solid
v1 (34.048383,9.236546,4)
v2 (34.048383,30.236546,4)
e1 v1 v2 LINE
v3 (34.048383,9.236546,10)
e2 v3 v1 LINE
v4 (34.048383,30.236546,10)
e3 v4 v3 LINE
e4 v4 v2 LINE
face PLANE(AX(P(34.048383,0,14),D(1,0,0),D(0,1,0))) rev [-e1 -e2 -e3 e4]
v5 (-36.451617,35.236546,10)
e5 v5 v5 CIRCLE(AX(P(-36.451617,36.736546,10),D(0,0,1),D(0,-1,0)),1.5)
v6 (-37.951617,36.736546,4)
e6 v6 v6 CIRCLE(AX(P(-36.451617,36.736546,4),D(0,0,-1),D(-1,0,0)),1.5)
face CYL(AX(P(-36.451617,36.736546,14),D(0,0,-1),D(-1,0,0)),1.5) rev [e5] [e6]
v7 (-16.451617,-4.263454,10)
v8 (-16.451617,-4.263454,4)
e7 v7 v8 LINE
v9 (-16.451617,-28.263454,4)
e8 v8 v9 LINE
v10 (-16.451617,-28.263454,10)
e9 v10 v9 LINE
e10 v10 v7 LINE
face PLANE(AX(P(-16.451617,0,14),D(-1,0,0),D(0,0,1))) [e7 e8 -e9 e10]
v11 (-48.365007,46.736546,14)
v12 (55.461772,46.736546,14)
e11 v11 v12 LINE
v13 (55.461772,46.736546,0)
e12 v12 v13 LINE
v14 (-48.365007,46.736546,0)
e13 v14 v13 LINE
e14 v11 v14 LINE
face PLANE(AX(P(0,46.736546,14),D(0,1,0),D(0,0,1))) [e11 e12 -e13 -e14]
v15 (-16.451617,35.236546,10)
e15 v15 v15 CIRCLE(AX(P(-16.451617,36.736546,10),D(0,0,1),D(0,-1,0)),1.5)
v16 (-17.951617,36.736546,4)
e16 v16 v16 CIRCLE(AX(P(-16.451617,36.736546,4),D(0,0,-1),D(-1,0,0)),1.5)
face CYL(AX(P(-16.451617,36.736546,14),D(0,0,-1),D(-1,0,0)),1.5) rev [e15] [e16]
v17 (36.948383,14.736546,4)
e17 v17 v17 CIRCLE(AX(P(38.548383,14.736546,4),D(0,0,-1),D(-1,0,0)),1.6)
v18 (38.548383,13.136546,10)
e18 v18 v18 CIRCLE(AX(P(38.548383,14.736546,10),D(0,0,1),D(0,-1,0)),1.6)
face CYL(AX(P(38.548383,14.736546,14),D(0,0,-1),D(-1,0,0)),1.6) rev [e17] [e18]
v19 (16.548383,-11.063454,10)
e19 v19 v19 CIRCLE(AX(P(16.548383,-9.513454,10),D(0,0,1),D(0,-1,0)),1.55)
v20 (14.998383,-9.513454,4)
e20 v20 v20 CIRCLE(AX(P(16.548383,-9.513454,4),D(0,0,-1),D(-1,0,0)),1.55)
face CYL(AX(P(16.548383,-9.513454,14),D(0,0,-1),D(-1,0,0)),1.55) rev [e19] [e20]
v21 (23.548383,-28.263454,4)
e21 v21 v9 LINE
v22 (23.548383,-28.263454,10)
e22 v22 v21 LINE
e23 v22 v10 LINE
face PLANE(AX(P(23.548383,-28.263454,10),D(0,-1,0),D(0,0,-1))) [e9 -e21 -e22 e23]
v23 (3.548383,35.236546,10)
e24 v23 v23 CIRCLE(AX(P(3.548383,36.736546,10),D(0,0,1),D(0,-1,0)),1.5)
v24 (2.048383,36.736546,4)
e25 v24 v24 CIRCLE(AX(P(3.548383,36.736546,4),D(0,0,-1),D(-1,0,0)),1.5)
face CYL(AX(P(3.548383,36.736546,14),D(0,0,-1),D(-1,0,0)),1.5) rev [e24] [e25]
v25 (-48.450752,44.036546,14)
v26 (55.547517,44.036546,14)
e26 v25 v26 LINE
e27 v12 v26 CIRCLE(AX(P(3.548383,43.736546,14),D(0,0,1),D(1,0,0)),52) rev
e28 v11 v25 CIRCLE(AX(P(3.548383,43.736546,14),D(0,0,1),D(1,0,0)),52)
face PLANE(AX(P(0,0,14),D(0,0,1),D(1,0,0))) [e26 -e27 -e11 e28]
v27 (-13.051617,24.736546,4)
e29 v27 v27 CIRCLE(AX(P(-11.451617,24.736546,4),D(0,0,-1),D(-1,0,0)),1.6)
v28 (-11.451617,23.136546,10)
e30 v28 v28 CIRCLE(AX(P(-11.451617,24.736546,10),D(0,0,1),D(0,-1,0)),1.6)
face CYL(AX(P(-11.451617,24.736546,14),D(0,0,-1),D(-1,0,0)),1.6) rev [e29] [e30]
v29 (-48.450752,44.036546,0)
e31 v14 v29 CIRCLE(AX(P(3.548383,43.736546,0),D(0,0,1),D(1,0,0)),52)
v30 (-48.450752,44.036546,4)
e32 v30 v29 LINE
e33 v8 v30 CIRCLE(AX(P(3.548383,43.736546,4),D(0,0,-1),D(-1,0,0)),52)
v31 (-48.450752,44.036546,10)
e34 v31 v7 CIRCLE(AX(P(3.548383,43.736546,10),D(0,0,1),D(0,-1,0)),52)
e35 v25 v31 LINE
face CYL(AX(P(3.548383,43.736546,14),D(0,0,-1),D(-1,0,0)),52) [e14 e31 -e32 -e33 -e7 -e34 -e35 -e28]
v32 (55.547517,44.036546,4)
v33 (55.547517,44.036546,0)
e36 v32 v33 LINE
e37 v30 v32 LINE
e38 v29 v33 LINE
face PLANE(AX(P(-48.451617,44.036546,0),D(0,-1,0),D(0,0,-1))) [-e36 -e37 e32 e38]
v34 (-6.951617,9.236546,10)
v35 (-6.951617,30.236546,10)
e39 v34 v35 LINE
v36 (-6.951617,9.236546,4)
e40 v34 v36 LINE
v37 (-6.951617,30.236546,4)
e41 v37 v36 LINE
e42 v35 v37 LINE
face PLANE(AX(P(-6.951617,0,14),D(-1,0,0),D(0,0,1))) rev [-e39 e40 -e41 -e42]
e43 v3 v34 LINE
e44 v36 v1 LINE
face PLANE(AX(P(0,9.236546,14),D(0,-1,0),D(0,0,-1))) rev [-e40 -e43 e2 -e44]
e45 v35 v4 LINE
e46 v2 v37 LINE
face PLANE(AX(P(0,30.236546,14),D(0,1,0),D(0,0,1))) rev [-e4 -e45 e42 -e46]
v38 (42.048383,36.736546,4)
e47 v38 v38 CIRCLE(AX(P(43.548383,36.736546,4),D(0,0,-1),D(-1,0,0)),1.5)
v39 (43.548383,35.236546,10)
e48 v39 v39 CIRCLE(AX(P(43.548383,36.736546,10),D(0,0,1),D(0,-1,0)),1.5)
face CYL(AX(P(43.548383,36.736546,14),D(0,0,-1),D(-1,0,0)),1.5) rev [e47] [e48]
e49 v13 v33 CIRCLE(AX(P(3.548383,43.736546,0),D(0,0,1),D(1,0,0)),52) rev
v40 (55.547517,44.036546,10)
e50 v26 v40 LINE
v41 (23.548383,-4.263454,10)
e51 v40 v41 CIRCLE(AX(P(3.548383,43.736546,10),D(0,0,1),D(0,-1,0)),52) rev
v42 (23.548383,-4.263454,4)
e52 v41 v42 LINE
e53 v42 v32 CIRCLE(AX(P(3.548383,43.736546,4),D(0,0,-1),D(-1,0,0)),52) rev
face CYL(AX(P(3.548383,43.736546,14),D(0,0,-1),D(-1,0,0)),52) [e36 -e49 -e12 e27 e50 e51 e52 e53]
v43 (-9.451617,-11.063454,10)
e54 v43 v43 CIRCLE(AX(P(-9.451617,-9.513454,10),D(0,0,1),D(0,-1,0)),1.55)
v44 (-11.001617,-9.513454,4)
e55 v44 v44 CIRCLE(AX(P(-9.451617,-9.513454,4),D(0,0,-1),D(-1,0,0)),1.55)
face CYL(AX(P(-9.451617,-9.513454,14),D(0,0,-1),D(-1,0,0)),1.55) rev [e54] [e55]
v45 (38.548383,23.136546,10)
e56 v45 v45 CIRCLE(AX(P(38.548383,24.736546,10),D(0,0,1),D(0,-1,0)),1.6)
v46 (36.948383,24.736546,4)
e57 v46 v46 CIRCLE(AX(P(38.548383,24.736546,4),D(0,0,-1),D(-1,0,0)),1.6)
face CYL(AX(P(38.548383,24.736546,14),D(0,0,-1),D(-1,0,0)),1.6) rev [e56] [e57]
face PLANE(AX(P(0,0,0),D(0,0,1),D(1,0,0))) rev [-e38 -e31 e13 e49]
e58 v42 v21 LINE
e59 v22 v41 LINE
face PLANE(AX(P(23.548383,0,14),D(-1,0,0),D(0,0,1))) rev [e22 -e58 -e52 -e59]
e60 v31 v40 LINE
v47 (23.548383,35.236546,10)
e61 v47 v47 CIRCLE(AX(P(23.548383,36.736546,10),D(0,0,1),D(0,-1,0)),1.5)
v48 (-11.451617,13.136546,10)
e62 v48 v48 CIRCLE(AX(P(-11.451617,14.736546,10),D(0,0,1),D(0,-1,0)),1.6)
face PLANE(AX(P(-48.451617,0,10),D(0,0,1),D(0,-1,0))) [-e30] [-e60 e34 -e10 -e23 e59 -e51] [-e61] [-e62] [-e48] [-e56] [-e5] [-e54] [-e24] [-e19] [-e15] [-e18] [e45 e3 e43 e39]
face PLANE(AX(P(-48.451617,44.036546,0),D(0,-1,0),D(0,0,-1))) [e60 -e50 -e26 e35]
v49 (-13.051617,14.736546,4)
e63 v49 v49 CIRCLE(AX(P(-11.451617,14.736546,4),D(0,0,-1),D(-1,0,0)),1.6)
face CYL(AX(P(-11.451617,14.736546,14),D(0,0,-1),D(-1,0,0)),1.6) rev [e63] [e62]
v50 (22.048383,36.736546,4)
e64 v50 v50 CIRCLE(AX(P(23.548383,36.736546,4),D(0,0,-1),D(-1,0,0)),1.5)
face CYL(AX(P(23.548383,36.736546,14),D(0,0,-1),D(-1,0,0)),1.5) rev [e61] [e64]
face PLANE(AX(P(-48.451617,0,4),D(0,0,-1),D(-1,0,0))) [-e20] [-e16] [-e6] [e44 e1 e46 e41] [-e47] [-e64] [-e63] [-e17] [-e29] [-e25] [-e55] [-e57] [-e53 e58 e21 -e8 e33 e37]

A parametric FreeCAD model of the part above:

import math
import FreeCAD as App
import Part
import Sketcher

V = App.Vector
Q = App.Units.Quantity

doc = App.newDocument("Part")
body = doc.addObject("PartDesign::Body", "Body")

sketch1 = body.newObject("Sketcher::SketchObject", "Sketch")
sketch1.AttachmentSupport = (doc.getObject("XY_Plane"), [""])
sketch1.MapMode = "FlatFace"
sketch1.addGeometry(Part.LineSegment(V(55.461772, 46.736546, 0), V(-48.365007, 46.736546, 0)), False)
sketch1.addGeometry(Part.ArcOfCircle(Part.Circle(V(3.548386, 43.736546, 0), V(0, 0, 1), 52.000003), math.radians(176.692638), math.radians(178.632926)), False)
sketch1.addGeometry(Part.ArcOfCircle(Part.Circle(V(3.548382, 43.736546, 0), V(0, 0, 1), 52), math.radians(178.632926), math.radians(180)), False)
sketch1.addGeometry(Part.ArcOfCircle(Part.Circle(V(3.548383, 43.736546, 0), V(0, 0, 1), 52), math.radians(180), math.radians(247.380135)), False)
sketch1.addGeometry(Part.LineSegment(V(-16.451617, -4.263454, 0), V(-16.451617, -24.263454, 0)), False)
sketch1.addGeometry(Part.LineSegment(V(-16.451617, -24.263454, 0), V(23.548383, -24.263454, 0)), False)
sketch1.addGeometry(Part.LineSegment(V(23.548383, -24.263454, 0), V(23.548383, -4.263454, 0)), False)
sketch1.addGeometry(Part.ArcOfCircle(Part.Circle(V(3.548383, 43.736546, 0), V(0, 0, 1), 52), math.radians(-67.380135), math.radians(0)), False)
sketch1.addGeometry(Part.ArcOfCircle(Part.Circle(V(3.548382, 43.736546, 0), V(0, 0, 1), 52), math.radians(0), math.radians(3.307362)), False)
sketch1.addGeometry(Part.Circle(V(-11.451617, 14.736546, 0), V(0, 0, 1), 1.6), False)
sketch1.addGeometry(Part.Circle(V(38.548383, 14.736546, 0), V(0, 0, 1), 1.6), False)
sketch1.addGeometry(Part.LineSegment(V(34.048383, 9.236546, 0), V(-6.951617, 9.236546, 0)), False)
sketch1.addGeometry(Part.LineSegment(V(-6.951617, 9.236546, 0), V(-6.951617, 30.236546, 0)), False)
sketch1.addGeometry(Part.LineSegment(V(-6.951617, 30.236546, 0), V(34.048383, 30.236546, 0)), False)
sketch1.addGeometry(Part.LineSegment(V(34.048383, 30.236546, 0), V(34.048383, 9.236546, 0)), False)
sketch1.addGeometry(Part.Circle(V(-11.451617, 24.736546, 0), V(0, 0, 1), 1.6), False)
sketch1.addGeometry(Part.Circle(V(-36.451617, 36.736546, 0), V(0, 0, 1), 1.5), False)
sketch1.addGeometry(Part.Circle(V(-16.451617, 36.736546, 0), V(0, 0, 1), 1.5), False)
sketch1.addGeometry(Part.Circle(V(38.548383, 24.736546, 0), V(0, 0, 1), 1.6), False)
sketch1.addGeometry(Part.Circle(V(3.548383, 36.736546, 0), V(0, 0, 1), 1.5), False)
sketch1.addGeometry(Part.Circle(V(23.548383, 36.736546, 0), V(0, 0, 1), 1.5), False)
sketch1.addGeometry(Part.Circle(V(43.548383, 36.736546, 0), V(0, 0, 1), 1.5), False)
sketch1.addConstraint(Sketcher.Constraint("Coincident", 0, 2, 1, 1))
sketch1.addConstraint(Sketcher.Constraint("Tangent", 1, 2, 2, 1))
sketch1.addConstraint(Sketcher.Constraint("Tangent", 2, 2, 3, 1))
sketch1.addConstraint(Sketcher.Constraint("Coincident", 3, 2, 4, 1))
sketch1.addConstraint(Sketcher.Constraint("Coincident", 4, 2, 5, 1))
sketch1.addConstraint(Sketcher.Constraint("Coincident", 5, 2, 6, 1))
sketch1.addConstraint(Sketcher.Constraint("Coincident", 6, 2, 7, 1))
sketch1.addConstraint(Sketcher.Constraint("Tangent", 7, 2, 8, 1))
sketch1.addConstraint(Sketcher.Constraint("Coincident", 8, 2, 0, 1))
sketch1.addConstraint(Sketcher.Constraint("Coincident", 11, 2, 12, 1))
sketch1.addConstraint(Sketcher.Constraint("Coincident", 12, 2, 13, 1))
sketch1.addConstraint(Sketcher.Constraint("Coincident", 13, 2, 14, 1))
sketch1.addConstraint(Sketcher.Constraint("Coincident", 14, 2, 11, 1))
sketch1.addConstraint(Sketcher.Constraint("Horizontal", 0))
sketch1.addConstraint(Sketcher.Constraint("Vertical", 4))
sketch1.addConstraint(Sketcher.Constraint("Horizontal", 5))
sketch1.addConstraint(Sketcher.Constraint("Vertical", 6))
sketch1.addConstraint(Sketcher.Constraint("Horizontal", 11))
sketch1.addConstraint(Sketcher.Constraint("Vertical", 12))
sketch1.addConstraint(Sketcher.Constraint("Horizontal", 13))
sketch1.addConstraint(Sketcher.Constraint("Vertical", 14))
sketch1.addConstraint(Sketcher.Constraint("Coincident", 3, 3, 1, 3))
sketch1.addConstraint(Sketcher.Constraint("Coincident", 7, 3, 1, 3))
sketch1.addConstraint(Sketcher.Constraint("Equal", 3, 7))
sketch1.addConstraint(Sketcher.Constraint("Equal", 7, 8))
sketch1.addConstraint(Sketcher.Constraint("Equal", 9, 10))
sketch1.addConstraint(Sketcher.Constraint("Equal", 10, 15))
sketch1.addConstraint(Sketcher.Constraint("Equal", 16, 17))
sketch1.addConstraint(Sketcher.Constraint("Equal", 15, 18))
sketch1.addConstraint(Sketcher.Constraint("Equal", 17, 19))
sketch1.addConstraint(Sketcher.Constraint("Equal", 19, 20))
sketch1.addConstraint(Sketcher.Constraint("Equal", 20, 21))
sketch1.addConstraint(Sketcher.Constraint("Horizontal", 9, 3, 10, 3))
sketch1.addConstraint(Sketcher.Constraint("Horizontal", 16, 3, 17, 3))
sketch1.addConstraint(Sketcher.Constraint("Horizontal", 15, 3, 18, 3))
sketch1.addConstraint(Sketcher.Constraint("Horizontal", 17, 3, 19, 3))
sketch1.addConstraint(Sketcher.Constraint("Horizontal", 19, 3, 20, 3))
sketch1.addConstraint(Sketcher.Constraint("Horizontal", 20, 3, 21, 3))
sketch1.addConstraint(Sketcher.Constraint("Horizontal", 8, 3, 2, 2))
sketch1.addConstraint(Sketcher.Constraint("Horizontal", 3, 2, 6, 2))
sketch1.addConstraint(Sketcher.Constraint("Horizontal", 2, 2, 7, 2))
sketch1.addConstraint(Sketcher.Constraint("Vertical", 9, 3, 15, 3))
sketch1.addConstraint(Sketcher.Constraint("Vertical", 10, 3, 18, 3))
sketch1.addConstraint(Sketcher.Constraint("Vertical", 8, 3, 19, 3))
sketch1.addConstraint(Sketcher.Constraint("Vertical", 17, 3, 3, 2))
sketch1.addConstraint(Sketcher.Constraint("Vertical", 20, 3, 5, 2))
sketch1.addConstraint(Sketcher.Constraint("Diameter", 16, Q("3 mm")))
sketch1.addConstraint(Sketcher.Constraint("Radius", 2, Q("52 mm")))
sketch1.addConstraint(Sketcher.Constraint("Diameter", 9, Q("3.2 mm")))
sketch1.addConstraint(Sketcher.Constraint("DistanceX", 5, 1, 5, 2, Q("40 mm")))
sketch1.addConstraint(Sketcher.Constraint("DistanceX", 11, 2, 11, 1, Q("41 mm")))
sketch1.addConstraint(Sketcher.Constraint("DistanceY", 4, 2, 4, 1, Q("20 mm")))
sketch1.addConstraint(Sketcher.Constraint("DistanceY", 12, 1, 12, 2, Q("21 mm")))
sketch1.addConstraint(Sketcher.Constraint("DistanceX", 9, 3, 8, 3, Q("15 mm")))
sketch1.addConstraint(Sketcher.Constraint("DistanceY", 9, 3, 8, 3, Q("29 mm")))
sketch1.addConstraint(Sketcher.Constraint("DistanceX", 3, 3, 10, 3, Q("35 mm")))
sketch1.addConstraint(Sketcher.Constraint("DistanceY", 9, 3, 15, 3, Q("10 mm")))
sketch1.addConstraint(Sketcher.Constraint("DistanceX", 16, 3, 15, 3, Q("25 mm")))
sketch1.addConstraint(Sketcher.Constraint("DistanceY", 15, 3, 16, 3, Q("12 mm")))
sketch1.addConstraint(Sketcher.Constraint("DistanceX", 18, 3, 21, 3, Q("5 mm")))
sketch1.addConstraint(Sketcher.Constraint("DistanceY", 16, 3, 0, 2, Q("10 mm")))
sketch1.addConstraint(Sketcher.Constraint("DistanceX", 9, 3, 11, 2, Q("4.5 mm")))
sketch1.addConstraint(Sketcher.Constraint("DistanceY", 11, 2, 9, 3, Q("5.5 mm")))
sketch1.addConstraint(Sketcher.Constraint("DistanceY", 1, 2, 0, 2, Q("1.759401 mm")))
sketch1.addConstraint(Sketcher.Constraint("DistanceX", -1, 1, 1, 3, Q("3.548386 mm")))
sketch1.addConstraint(Sketcher.Constraint("DistanceY", -1, 1, 1, 3, Q("43.736546 mm")))
pad1 = body.newObject("PartDesign::Pad", "Pad")
pad1.Profile = sketch1
pad1.Length = 14

sketch2 = body.newObject("Sketcher::SketchObject", "Sketch001")
sketch2.AttachmentSupport = (doc.getObject("YZ_Plane"), [""])
sketch2.MapMode = "FlatFace"
sketch2.AttachmentOffset = App.Placement(V(0, 0, 23.548383), App.Rotation())
sketch2.addGeometry(Part.LineSegment(V(-24.263454, 14, 0), V(-24.263454, 10, 0)), False)
sketch2.addGeometry(Part.LineSegment(V(-24.263454, 10, 0), V(44.036546, 10, 0)), False)
sketch2.addGeometry(Part.LineSegment(V(44.036546, 10, 0), V(44.036546, 14, 0)), False)
sketch2.addGeometry(Part.LineSegment(V(44.036546, 14, 0), V(-24.263454, 14, 0)), False)
sketch2.addGeometry(Part.LineSegment(V(44.036546, 4, 0), V(-24.263454, 4, 0)), False)
sketch2.addGeometry(Part.LineSegment(V(-24.263454, 4, 0), V(-24.263454, 0, 0)), False)
sketch2.addGeometry(Part.LineSegment(V(-24.263454, 0, 0), V(44.036546, 0, 0)), False)
sketch2.addGeometry(Part.LineSegment(V(44.036546, 0, 0), V(44.036546, 4, 0)), False)
sketch2.addConstraint(Sketcher.Constraint("Coincident", 0, 2, 1, 1))
sketch2.addConstraint(Sketcher.Constraint("Coincident", 1, 2, 2, 1))
sketch2.addConstraint(Sketcher.Constraint("Coincident", 2, 2, 3, 1))
sketch2.addConstraint(Sketcher.Constraint("Coincident", 3, 2, 0, 1))
sketch2.addConstraint(Sketcher.Constraint("Coincident", 4, 2, 5, 1))
sketch2.addConstraint(Sketcher.Constraint("Coincident", 5, 2, 6, 1))
sketch2.addConstraint(Sketcher.Constraint("Coincident", 6, 2, 7, 1))
sketch2.addConstraint(Sketcher.Constraint("Coincident", 7, 2, 4, 1))
sketch2.addConstraint(Sketcher.Constraint("Vertical", 0))
sketch2.addConstraint(Sketcher.Constraint("Horizontal", 1))
sketch2.addConstraint(Sketcher.Constraint("Vertical", 2))
sketch2.addConstraint(Sketcher.Constraint("Horizontal", 3))
sketch2.addConstraint(Sketcher.Constraint("Horizontal", 4))
sketch2.addConstraint(Sketcher.Constraint("Vertical", 5))
sketch2.addConstraint(Sketcher.Constraint("Horizontal", 6))
sketch2.addConstraint(Sketcher.Constraint("Vertical", 7))
sketch2.addConstraint(Sketcher.Constraint("PointOnObject", 5, 2, -1))
sketch2.addConstraint(Sketcher.Constraint("Vertical", 3, 2, 4, 2))
sketch2.addConstraint(Sketcher.Constraint("Vertical", 2, 2, 6, 2))
sketch2.addConstraint(Sketcher.Constraint("Equal", 2, 5))
sketch2.addConstraint(Sketcher.Constraint("DistanceY", 0, 2, 0, 1, Q("4 mm")))
sketch2.addConstraint(Sketcher.Constraint("DistanceX", 1, 1, 1, 2, Q("68.3 mm")))
sketch2.addConstraint(Sketcher.Constraint("DistanceY", -1, 1, 0, 2, Q("10 mm")))
sketch2.addConstraint(Sketcher.Constraint("DistanceX", 0, 2, -1, 1, Q("24.263454 mm")))
pocket1 = body.newObject("PartDesign::Pocket", "Pocket")
pocket1.Profile = sketch2
pocket1.Type = "ThroughAll"
pocket1.Midplane = True

sketch3 = body.newObject("Sketcher::SketchObject", "Sketch002")
sketch3.AttachmentSupport = (doc.getObject("XY_Plane"), [""])
sketch3.MapMode = "FlatFace"
sketch3.AttachmentOffset = App.Placement(V(0, 0, 4), App.Rotation())
sketch3.addGeometry(Part.LineSegment(V(23.548383, -24.263454, 0), V(23.548383, -28.263454, 0)), False)
sketch3.addGeometry(Part.LineSegment(V(23.548383, -28.263454, 0), V(-16.451617, -28.263454, 0)), False)
sketch3.addGeometry(Part.LineSegment(V(-16.451617, -28.263454, 0), V(-16.451617, -24.263454, 0)), False)
sketch3.addGeometry(Part.LineSegment(V(-16.451617, -24.263454, 0), V(23.548383, -24.263454, 0)), False)
sketch3.addConstraint(Sketcher.Constraint("Coincident", 0, 2, 1, 1))
sketch3.addConstraint(Sketcher.Constraint("Coincident", 1, 2, 2, 1))
sketch3.addConstraint(Sketcher.Constraint("Coincident", 2, 2, 3, 1))
sketch3.addConstraint(Sketcher.Constraint("Coincident", 3, 2, 0, 1))
sketch3.addConstraint(Sketcher.Constraint("Vertical", 0))
sketch3.addConstraint(Sketcher.Constraint("Horizontal", 1))
sketch3.addConstraint(Sketcher.Constraint("Vertical", 2))
sketch3.addConstraint(Sketcher.Constraint("Horizontal", 3))
sketch3.addConstraint(Sketcher.Constraint("DistanceX", 1, 2, 1, 1, Q("40 mm")))
sketch3.addConstraint(Sketcher.Constraint("DistanceY", 0, 2, 0, 1, Q("4 mm")))
sketch3.addConstraint(Sketcher.Constraint("DistanceX", -1, 1, 0, 2, Q("23.548383 mm")))
sketch3.addConstraint(Sketcher.Constraint("DistanceY", 0, 2, -1, 1, Q("28.263454 mm")))
pad2 = body.newObject("PartDesign::Pad", "Pad001")
pad2.Profile = sketch3
pad2.Length = 6

sketch4 = body.newObject("Sketcher::SketchObject", "Sketch003")
sketch4.AttachmentSupport = (doc.getObject("XY_Plane"), [""])
sketch4.MapMode = "FlatFace"
sketch4.AttachmentOffset = App.Placement(V(0, 0, 4), App.Rotation())
sketch4.addGeometry(Part.Circle(V(16.548383, -9.513454, 0), V(0, 0, 1), 1.55), False)
sketch4.addGeometry(Part.Circle(V(-9.451617, -9.513454, 0), V(0, 0, 1), 1.55), False)
sketch4.addConstraint(Sketcher.Constraint("Equal", 0, 1))
sketch4.addConstraint(Sketcher.Constraint("Horizontal", 0, 3, 1, 3))
sketch4.addConstraint(Sketcher.Constraint("Diameter", 0, Q("3.1 mm")))
sketch4.addConstraint(Sketcher.Constraint("DistanceX", 1, 3, 0, 3, Q("26 mm")))
sketch4.addConstraint(Sketcher.Constraint("DistanceX", -1, 1, 0, 3, Q("16.548383 mm")))
sketch4.addConstraint(Sketcher.Constraint("DistanceY", 0, 3, -1, 1, Q("9.513454 mm")))
pocket2 = body.newObject("PartDesign::Pocket", "Pocket001")
pocket2.Profile = sketch4
pocket2.Type = "ThroughAll"
pocket2.Midplane = True

doc.recompute()
